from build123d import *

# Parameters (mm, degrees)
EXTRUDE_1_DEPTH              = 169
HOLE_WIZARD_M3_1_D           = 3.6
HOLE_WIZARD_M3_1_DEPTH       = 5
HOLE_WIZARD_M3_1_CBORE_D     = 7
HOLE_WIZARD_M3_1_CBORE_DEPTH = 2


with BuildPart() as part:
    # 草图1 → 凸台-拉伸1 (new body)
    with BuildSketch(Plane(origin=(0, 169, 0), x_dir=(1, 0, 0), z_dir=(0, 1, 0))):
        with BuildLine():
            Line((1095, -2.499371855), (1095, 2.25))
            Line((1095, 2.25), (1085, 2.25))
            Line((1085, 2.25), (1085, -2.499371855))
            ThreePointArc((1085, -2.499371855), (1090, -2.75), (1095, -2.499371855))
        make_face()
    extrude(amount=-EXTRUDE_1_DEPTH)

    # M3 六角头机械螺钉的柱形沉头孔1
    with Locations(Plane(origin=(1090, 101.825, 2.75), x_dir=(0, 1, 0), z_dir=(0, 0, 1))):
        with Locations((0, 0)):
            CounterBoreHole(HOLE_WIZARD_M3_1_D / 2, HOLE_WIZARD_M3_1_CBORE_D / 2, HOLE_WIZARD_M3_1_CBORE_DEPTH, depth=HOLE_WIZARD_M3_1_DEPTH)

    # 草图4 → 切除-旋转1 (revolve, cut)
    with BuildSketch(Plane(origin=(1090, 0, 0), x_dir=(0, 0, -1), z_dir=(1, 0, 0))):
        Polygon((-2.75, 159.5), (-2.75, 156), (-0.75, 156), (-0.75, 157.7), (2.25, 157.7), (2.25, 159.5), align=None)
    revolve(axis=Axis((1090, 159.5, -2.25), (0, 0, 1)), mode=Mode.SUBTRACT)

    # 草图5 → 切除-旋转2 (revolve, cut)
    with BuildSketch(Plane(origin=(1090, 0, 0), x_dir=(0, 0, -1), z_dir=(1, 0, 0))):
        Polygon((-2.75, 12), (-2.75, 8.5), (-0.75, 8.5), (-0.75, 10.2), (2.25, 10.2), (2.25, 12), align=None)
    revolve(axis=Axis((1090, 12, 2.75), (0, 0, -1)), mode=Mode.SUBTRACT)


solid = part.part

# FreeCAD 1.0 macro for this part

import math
import FreeCAD as App
import Part
import Sketcher
from FreeCAD import Vector
Q = App.Units.Quantity

doc = App.newDocument("Part")
body = doc.addObject("PartDesign::Body", "Body")

# Sketch on XZ plane
sketch1 = doc.addObject("Sketcher::SketchObject", "Sketch")
body.addObject(sketch1)
sketch1.AttachmentSupport = (doc.XZ_Plane, [""])
sketch1.MapMode = "FlatFace"
sketch1.AttachmentOffset = App.Placement(Vector(0, 0, -169), App.Rotation())
sketch1.addGeometry(Part.LineSegment(Vector(1095, 2.5, 0), Vector(1095, -2.2, 0)), False)
sketch1.addGeometry(Part.LineSegment(Vector(1095, -2.2, 0), Vector(1085, -2.2, 0)), False)
sketch1.addGeometry(Part.LineSegment(Vector(1085, -2.2, 0), Vector(1085, 2.5, 0)), False)
sketch1.addGeometry(Part.ArcOfCircle(Part.Circle(Vector(1090, -47.2, 0), Vector(0, 0, 1), 50), math.radians(84.26), math.radians(95.74)), False)
sketch1.addConstraint(Sketcher.Constraint("Coincident", 0, 2, 1, 1))
sketch1.addConstraint(Sketcher.Constraint("Coincident", 1, 2, 2, 1))
sketch1.addConstraint(Sketcher.Constraint("Coincident", 2, 2, 3, 2))
sketch1.addConstraint(Sketcher.Constraint("Coincident", 3, 1, 0, 1))
sketch1.addConstraint(Sketcher.Constraint("Vertical", 0))
sketch1.addConstraint(Sketcher.Constraint("Horizontal", 1))
sketch1.addConstraint(Sketcher.Constraint("Vertical", 2))
sketch1.addConstraint(Sketcher.Constraint("Horizontal", 2, 2, 3, 1))
sketch1.addConstraint(Sketcher.Constraint("Radius", 3, Q("50 mm")))
sketch1.addConstraint(Sketcher.Constraint("DistanceX", 1, 2, 1, 1, Q("10 mm")))
sketch1.addConstraint(Sketcher.Constraint("DistanceX", -1, 1, 3, 3, Q("1090 mm")))
sketch1.addConstraint(Sketcher.Constraint("DistanceY", 3, 3, 0, 2, Q("45 mm")))
sketch1.addConstraint(Sketcher.Constraint("DistanceY", 3, 3, -1, 1, Q("47.25 mm")))
pad1 = doc.addObject("PartDesign::Pad", "Pad")
body.addObject(pad1)
pad1.Profile = sketch1
pad1.Length = 169

# Sketch on XY plane
sketch2 = doc.addObject("Sketcher::SketchObject", "Sketch001")
body.addObject(sketch2)
sketch2.AttachmentSupport = (doc.XY_Plane, [""])
sketch2.MapMode = "FlatFace"
sketch2.AttachmentOffset = App.Placement(Vector(0, 0, 2.75), App.Rotation())
sketch2.addGeometry(Part.Circle(Vector(1090, 101.8, 0), Vector(0, 0, 1), 1.8), False)
sketch2.addConstraint(Sketcher.Constraint("Diameter", 0, Q("3.6 mm")))
sketch2.addConstraint(Sketcher.Constraint("DistanceX", -1, 1, 0, 3, Q("1090 mm")))
sketch2.addConstraint(Sketcher.Constraint("DistanceY", -1, 1, 0, 3, Q("101.825 mm")))
doc.recompute()
hole = doc.addObject("PartDesign::Hole", "Hole")
body.addObject(hole)
hole.Profile = sketch2
hole.ThreadType = "None"
hole.Diameter = 3.6
hole.DepthType = "Dimension"
hole.Depth = 5
hole.DrillPoint = "Flat"
hole.HoleCutType = "Counterbore"
hole.HoleCutDiameter = 7
hole.HoleCutDepth = 2

# Sketch on YZ plane
sketch3 = doc.addObject("Sketcher::SketchObject", "Sketch002")
body.addObject(sketch3)
sketch3.AttachmentSupport = (doc.YZ_Plane, [""])
sketch3.MapMode = "FlatFace"
sketch3.AttachmentOffset = App.Placement(Vector(0, 0, 1090), App.Rotation())
sketch3.addGeometry(Part.LineSegment(Vector(159.5, 2.8, 0), Vector(156, 2.8, 0)), False)
sketch3.addGeometry(Part.LineSegment(Vector(156, 2.8, 0), Vector(156, 0.8, 0)), False)
sketch3.addGeometry(Part.LineSegment(Vector(156, 0.8, 0), Vector(157.7, 0.8, 0)), False)
sketch3.addGeometry(Part.LineSegment(Vector(157.7, 0.8, 0), Vector(157.7, -2.2, 0)), False)
sketch3.addGeometry(Part.LineSegment(Vector(157.7, -2.2, 0), Vector(159.5, -2.2, 0)), False)
sketch3.addGeometry(Part.LineSegment(Vector(159.5, -2.2, 0), Vector(159.5, 2.8, 0)), False)
sketch3.addGeometry(Part.LineSegment(Vector(159.5, -2.2, 0), Vector(159.5, 2.8, 0)), True)  # axis
sketch3.addConstraint(Sketcher.Constraint("Coincident", 0, 2, 1, 1))
sketch3.addConstraint(Sketcher.Constraint("Coincident", 1, 2, 2, 1))
sketch3.addConstraint(Sketcher.Constraint("Coincident", 2, 2, 3, 1))
sketch3.addConstraint(Sketcher.Constraint("Coincident", 3, 2, 4, 1))
sketch3.addConstraint(Sketcher.Constraint("Coincident", 4, 2, 5, 1))
sketch3.addConstraint(Sketcher.Constraint("Coincident", 5, 2, 0, 1))
sketch3.addConstraint(Sketcher.Constraint("Horizontal", 0))
sketch3.addConstraint(Sketcher.Constraint("Vertical", 1))
sketch3.addConstraint(Sketcher.Constraint("Horizontal", 2))
sketch3.addConstraint(Sketcher.Constraint("Vertical", 3))
sketch3.addConstraint(Sketcher.Constraint("Horizontal", 4))
sketch3.addConstraint(Sketcher.Constraint("Vertical", 5))
sketch3.addConstraint(Sketcher.Constraint("Vertical", 6))
sketch3.addConstraint(Sketcher.Constraint("Coincident", 6, 1, 4, 2))
sketch3.addConstraint(Sketcher.Constraint("Horizontal", 0, 2, 6, 2))
sketch3.addConstraint(Sketcher.Constraint("DistanceY", 1, 2, 1, 1, Q("2 mm")))
sketch3.addConstraint(Sketcher.Constraint("DistanceY", 3, 2, 3, 1, Q("3 mm")))
sketch3.addConstraint(Sketcher.Constraint("DistanceX", 0, 2, 0, 1, Q("3.5 mm")))
sketch3.addConstraint(Sketcher.Constraint("DistanceX", 2, 1, 2, 2, Q("1.7 mm")))
sketch3.addConstraint(Sketcher.Constraint("DistanceX", -1, 1, 0, 2, Q("156 mm")))
sketch3.addConstraint(Sketcher.Constraint("DistanceY", -1, 1, 0, 2, Q("2.75 mm")))
groove = doc.addObject("PartDesign::Groove", "Groove")
body.addObject(groove)
groove.Profile = sketch3
groove.ReferenceAxis = (sketch3, ["Axis0"])
groove.Angle = 360

# Sketch on YZ plane
sketch4 = doc.addObject("Sketcher::SketchObject", "Sketch003")
body.addObject(sketch4)
sketch4.AttachmentSupport = (doc.YZ_Plane, [""])
sketch4.MapMode = "FlatFace"
sketch4.AttachmentOffset = App.Placement(Vector(0, 0, 1090), App.Rotation())
sketch4.addGeometry(Part.LineSegment(Vector(12, 2.8, 0), Vector(8.5, 2.8, 0)), False)
sketch4.addGeometry(Part.LineSegment(Vector(8.5, 2.8, 0), Vector(8.5, 0.8, 0)), False)
sketch4.addGeometry(Part.LineSegment(Vector(8.5, 0.8, 0), Vector(10.2, 0.8, 0)), False)
sketch4.addGeometry(Part.LineSegment(Vector(10.2, 0.8, 0), Vector(10.2, -2.2, 0)), False)
sketch4.addGeometry(Part.LineSegment(Vector(10.2, -2.2, 0), Vector(12, -2.2, 0)), False)
sketch4.addGeometry(Part.LineSegment(Vector(12, -2.2, 0), Vector(12, 2.8, 0)), False)
sketch4.addGeometry(Part.LineSegment(Vector(12, 2.8, 0), Vector(12, -2.2, 0)), True)  # axis
sketch4.addConstraint(Sketcher.Constraint("Coincident", 0, 2, 1, 1))
sketch4.addConstraint(Sketcher.Constraint("Coincident", 1, 2, 2, 1))
sketch4.addConstraint(Sketcher.Constraint("Coincident", 2, 2, 3, 1))
sketch4.addConstraint(Sketcher.Constraint("Coincident", 3, 2, 4, 1))
sketch4.addConstraint(Sketcher.Constraint("Coincident", 4, 2, 5, 1))
sketch4.addConstraint(Sketcher.Constraint("Coincident", 5, 2, 0, 1))
sketch4.addConstraint(Sketcher.Constraint("Horizontal", 0))
sketch4.addConstraint(Sketcher.Constraint("Vertical", 1))
sketch4.addConstraint(Sketcher.Constraint("Horizontal", 2))
sketch4.addConstraint(Sketcher.Constraint("Vertical", 3))
sketch4.addConstraint(Sketcher.Constraint("Horizontal", 4))
sketch4.addConstraint(Sketcher.Constraint("Vertical", 5))
sketch4.addConstraint(Sketcher.Constraint("Vertical", 6))
sketch4.addConstraint(Sketcher.Constraint("Coincident", 6, 1, 5, 2))
sketch4.addConstraint(Sketcher.Constraint("Horizontal", 3, 2, 6, 2))
sketch4.addConstraint(Sketcher.Constraint("DistanceY", 1, 2, 1, 1, Q("2 mm")))
sketch4.addConstraint(Sketcher.Constraint("DistanceY", 3, 2, 3, 1, Q("3 mm")))
sketch4.addConstraint(Sketcher.Constraint("DistanceX", 0, 2, 0, 1, Q("3.5 mm")))
sketch4.addConstraint(Sketcher.Constraint("DistanceX", 2, 1, 2, 2, Q("1.7 mm")))
sketch4.addConstraint(Sketcher.Constraint("DistanceX", -1, 1, 4, 2, Q("12 mm")))
sketch4.addConstraint(Sketcher.Constraint("DistanceY", -1, 1, 0, 2, Q("2.75 mm")))
groove2 = doc.addObject("PartDesign::Groove", "Groove001")
body.addObject(groove2)
groove2.Profile = sketch4
groove2.ReferenceAxis = (sketch4, ["Axis0"])
groove2.Angle = 360

doc.recompute()
